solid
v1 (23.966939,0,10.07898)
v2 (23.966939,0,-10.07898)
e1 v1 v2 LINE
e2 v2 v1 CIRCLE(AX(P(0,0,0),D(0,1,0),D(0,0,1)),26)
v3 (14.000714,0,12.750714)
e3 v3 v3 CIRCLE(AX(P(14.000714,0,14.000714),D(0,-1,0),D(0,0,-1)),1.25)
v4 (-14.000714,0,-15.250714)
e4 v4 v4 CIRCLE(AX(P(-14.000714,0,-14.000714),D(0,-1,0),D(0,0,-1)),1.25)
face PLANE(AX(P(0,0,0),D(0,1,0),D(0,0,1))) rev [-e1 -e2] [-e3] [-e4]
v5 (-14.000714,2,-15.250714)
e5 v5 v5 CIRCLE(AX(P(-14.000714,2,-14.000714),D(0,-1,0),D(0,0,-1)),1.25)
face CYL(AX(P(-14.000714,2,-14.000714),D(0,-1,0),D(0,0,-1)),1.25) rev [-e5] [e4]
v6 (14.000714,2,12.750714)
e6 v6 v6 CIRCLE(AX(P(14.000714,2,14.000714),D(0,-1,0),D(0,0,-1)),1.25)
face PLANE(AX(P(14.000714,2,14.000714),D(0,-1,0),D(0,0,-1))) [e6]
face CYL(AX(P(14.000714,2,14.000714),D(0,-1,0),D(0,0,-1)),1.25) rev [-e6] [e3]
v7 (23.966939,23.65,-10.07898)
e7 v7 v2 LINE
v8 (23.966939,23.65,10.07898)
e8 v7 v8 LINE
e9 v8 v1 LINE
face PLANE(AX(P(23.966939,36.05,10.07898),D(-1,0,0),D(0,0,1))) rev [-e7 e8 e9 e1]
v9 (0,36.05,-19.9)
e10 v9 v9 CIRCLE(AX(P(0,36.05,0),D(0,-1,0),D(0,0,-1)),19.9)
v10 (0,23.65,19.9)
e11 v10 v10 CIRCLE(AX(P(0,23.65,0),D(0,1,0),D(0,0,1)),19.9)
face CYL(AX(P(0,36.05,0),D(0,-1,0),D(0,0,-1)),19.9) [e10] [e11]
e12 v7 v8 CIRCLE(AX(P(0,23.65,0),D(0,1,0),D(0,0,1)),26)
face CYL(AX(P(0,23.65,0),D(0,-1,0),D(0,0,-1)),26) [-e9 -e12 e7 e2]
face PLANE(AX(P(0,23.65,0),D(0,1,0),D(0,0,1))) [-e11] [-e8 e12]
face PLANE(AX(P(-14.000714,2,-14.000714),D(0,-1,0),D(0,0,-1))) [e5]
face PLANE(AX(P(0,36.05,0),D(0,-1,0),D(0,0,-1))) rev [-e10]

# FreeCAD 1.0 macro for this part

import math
import FreeCAD as App
import Part
import Sketcher
Q = App.Units.Quantity

doc = App.newDocument("Part")
body = doc.addObject("PartDesign::Body", "Body")

# Sketch on XZ plane
sketch1 = body.newObject("Sketcher::SketchObject", "Sketch")
sketch1.AttachmentSupport = (doc.getObject("XZ_Plane"), [""])
sketch1.MapMode = "FlatFace"
sketch1.addGeometry(Part.Circle(App.Vector(0, 0, 0), App.Vector(0, 0, 1), 26), False)
sketch1.addConstraint([
    Sketcher.Constraint("Coincident", 0, 3, -1, 1),
    Sketcher.Constraint("Diameter", 0, Q("52 mm")),
])
pad1 = body.newObject("PartDesign::Pad", "Pad")
pad1.Profile = sketch1
pad1.Length = 23.65
pad1.Reversed = True

# Sketch on XZ plane
sketch2 = body.newObject("Sketcher::SketchObject", "Sketch001")
sketch2.AttachmentSupport = (doc.getObject("XZ_Plane"), [""])
sketch2.MapMode = "FlatFace"
sketch2.addGeometry(Part.Circle(App.Vector(0, 0, 0), App.Vector(0, 0, 1), 20), False)
sketch2.addConstraint([
    Sketcher.Constraint("Coincident", 0, 3, -1, 1),
    Sketcher.Constraint("Diameter", 0, Q("39.8 mm")),
])
pad2 = body.newObject("PartDesign::Pad", "Pad001")
pad2.Profile = sketch2
pad2.Length = 36.05
pad2.Reversed = True

# Sketch on XZ plane
sketch3 = body.newObject("Sketcher::SketchObject", "Sketch002")
sketch3.AttachmentSupport = (doc.getObject("XZ_Plane"), [""])
sketch3.MapMode = "FlatFace"
sketch3.addGeometry([
    Part.LineSegment(App.Vector(24, 10, 0), App.Vector(24, -10, 0)),
    Part.ArcOfCircle(Part.Circle(App.Vector(0, 0, 0), App.Vector(0, 0, 1), 26), math.radians(-23), math.radians(23)),
], False)
sketch3.addConstraint([
    Sketcher.Constraint("Coincident", 0, 1, 1, 2),
    Sketcher.Constraint("Coincident", 1, 1, 0, 2),
    Sketcher.Constraint("Vertical", 0),
    Sketcher.Constraint("Coincident", 1, 3, -1, 1),
    Sketcher.Constraint("Radius", 1, Q("26 mm")),
    Sketcher.Constraint("DistanceY", 0, 2, 0, 1, Q("20.15796 mm")),
])
pocket1 = body.newObject("PartDesign::Pocket", "Pocket")
pocket1.Profile = sketch3
pocket1.Length = 36.05

# Sketch on XZ plane
sketch4 = body.newObject("Sketcher::SketchObject", "Sketch003")
sketch4.AttachmentSupport = (doc.getObject("XZ_Plane"), [""])
sketch4.MapMode = "FlatFace"
sketch4.addGeometry([
    Part.Circle(App.Vector(-14, -14, 0), App.Vector(0, 0, 1), 1.2),
    Part.Circle(App.Vector(14, 14, 0), App.Vector(0, 0, 1), 1.2),
], False)
sketch4.addConstraint([
    Sketcher.Constraint("Equal", 0, 1),
    Sketcher.Constraint("Symmetric", 0, 3, 1, 3, -1, 1),
    Sketcher.Constraint("Diameter", 0, Q("2.5 mm")),
    Sketcher.Constraint("DistanceX", 0, 3, 1, 3, Q("28.001429 mm")),
    Sketcher.Constraint("DistanceY", 0, 3, 1, 3, Q("28.001429 mm")),
])
pocket2 = body.newObject("PartDesign::Pocket", "Pocket001")
pocket2.Profile = sketch4
pocket2.Length = 2

doc.recompute()
